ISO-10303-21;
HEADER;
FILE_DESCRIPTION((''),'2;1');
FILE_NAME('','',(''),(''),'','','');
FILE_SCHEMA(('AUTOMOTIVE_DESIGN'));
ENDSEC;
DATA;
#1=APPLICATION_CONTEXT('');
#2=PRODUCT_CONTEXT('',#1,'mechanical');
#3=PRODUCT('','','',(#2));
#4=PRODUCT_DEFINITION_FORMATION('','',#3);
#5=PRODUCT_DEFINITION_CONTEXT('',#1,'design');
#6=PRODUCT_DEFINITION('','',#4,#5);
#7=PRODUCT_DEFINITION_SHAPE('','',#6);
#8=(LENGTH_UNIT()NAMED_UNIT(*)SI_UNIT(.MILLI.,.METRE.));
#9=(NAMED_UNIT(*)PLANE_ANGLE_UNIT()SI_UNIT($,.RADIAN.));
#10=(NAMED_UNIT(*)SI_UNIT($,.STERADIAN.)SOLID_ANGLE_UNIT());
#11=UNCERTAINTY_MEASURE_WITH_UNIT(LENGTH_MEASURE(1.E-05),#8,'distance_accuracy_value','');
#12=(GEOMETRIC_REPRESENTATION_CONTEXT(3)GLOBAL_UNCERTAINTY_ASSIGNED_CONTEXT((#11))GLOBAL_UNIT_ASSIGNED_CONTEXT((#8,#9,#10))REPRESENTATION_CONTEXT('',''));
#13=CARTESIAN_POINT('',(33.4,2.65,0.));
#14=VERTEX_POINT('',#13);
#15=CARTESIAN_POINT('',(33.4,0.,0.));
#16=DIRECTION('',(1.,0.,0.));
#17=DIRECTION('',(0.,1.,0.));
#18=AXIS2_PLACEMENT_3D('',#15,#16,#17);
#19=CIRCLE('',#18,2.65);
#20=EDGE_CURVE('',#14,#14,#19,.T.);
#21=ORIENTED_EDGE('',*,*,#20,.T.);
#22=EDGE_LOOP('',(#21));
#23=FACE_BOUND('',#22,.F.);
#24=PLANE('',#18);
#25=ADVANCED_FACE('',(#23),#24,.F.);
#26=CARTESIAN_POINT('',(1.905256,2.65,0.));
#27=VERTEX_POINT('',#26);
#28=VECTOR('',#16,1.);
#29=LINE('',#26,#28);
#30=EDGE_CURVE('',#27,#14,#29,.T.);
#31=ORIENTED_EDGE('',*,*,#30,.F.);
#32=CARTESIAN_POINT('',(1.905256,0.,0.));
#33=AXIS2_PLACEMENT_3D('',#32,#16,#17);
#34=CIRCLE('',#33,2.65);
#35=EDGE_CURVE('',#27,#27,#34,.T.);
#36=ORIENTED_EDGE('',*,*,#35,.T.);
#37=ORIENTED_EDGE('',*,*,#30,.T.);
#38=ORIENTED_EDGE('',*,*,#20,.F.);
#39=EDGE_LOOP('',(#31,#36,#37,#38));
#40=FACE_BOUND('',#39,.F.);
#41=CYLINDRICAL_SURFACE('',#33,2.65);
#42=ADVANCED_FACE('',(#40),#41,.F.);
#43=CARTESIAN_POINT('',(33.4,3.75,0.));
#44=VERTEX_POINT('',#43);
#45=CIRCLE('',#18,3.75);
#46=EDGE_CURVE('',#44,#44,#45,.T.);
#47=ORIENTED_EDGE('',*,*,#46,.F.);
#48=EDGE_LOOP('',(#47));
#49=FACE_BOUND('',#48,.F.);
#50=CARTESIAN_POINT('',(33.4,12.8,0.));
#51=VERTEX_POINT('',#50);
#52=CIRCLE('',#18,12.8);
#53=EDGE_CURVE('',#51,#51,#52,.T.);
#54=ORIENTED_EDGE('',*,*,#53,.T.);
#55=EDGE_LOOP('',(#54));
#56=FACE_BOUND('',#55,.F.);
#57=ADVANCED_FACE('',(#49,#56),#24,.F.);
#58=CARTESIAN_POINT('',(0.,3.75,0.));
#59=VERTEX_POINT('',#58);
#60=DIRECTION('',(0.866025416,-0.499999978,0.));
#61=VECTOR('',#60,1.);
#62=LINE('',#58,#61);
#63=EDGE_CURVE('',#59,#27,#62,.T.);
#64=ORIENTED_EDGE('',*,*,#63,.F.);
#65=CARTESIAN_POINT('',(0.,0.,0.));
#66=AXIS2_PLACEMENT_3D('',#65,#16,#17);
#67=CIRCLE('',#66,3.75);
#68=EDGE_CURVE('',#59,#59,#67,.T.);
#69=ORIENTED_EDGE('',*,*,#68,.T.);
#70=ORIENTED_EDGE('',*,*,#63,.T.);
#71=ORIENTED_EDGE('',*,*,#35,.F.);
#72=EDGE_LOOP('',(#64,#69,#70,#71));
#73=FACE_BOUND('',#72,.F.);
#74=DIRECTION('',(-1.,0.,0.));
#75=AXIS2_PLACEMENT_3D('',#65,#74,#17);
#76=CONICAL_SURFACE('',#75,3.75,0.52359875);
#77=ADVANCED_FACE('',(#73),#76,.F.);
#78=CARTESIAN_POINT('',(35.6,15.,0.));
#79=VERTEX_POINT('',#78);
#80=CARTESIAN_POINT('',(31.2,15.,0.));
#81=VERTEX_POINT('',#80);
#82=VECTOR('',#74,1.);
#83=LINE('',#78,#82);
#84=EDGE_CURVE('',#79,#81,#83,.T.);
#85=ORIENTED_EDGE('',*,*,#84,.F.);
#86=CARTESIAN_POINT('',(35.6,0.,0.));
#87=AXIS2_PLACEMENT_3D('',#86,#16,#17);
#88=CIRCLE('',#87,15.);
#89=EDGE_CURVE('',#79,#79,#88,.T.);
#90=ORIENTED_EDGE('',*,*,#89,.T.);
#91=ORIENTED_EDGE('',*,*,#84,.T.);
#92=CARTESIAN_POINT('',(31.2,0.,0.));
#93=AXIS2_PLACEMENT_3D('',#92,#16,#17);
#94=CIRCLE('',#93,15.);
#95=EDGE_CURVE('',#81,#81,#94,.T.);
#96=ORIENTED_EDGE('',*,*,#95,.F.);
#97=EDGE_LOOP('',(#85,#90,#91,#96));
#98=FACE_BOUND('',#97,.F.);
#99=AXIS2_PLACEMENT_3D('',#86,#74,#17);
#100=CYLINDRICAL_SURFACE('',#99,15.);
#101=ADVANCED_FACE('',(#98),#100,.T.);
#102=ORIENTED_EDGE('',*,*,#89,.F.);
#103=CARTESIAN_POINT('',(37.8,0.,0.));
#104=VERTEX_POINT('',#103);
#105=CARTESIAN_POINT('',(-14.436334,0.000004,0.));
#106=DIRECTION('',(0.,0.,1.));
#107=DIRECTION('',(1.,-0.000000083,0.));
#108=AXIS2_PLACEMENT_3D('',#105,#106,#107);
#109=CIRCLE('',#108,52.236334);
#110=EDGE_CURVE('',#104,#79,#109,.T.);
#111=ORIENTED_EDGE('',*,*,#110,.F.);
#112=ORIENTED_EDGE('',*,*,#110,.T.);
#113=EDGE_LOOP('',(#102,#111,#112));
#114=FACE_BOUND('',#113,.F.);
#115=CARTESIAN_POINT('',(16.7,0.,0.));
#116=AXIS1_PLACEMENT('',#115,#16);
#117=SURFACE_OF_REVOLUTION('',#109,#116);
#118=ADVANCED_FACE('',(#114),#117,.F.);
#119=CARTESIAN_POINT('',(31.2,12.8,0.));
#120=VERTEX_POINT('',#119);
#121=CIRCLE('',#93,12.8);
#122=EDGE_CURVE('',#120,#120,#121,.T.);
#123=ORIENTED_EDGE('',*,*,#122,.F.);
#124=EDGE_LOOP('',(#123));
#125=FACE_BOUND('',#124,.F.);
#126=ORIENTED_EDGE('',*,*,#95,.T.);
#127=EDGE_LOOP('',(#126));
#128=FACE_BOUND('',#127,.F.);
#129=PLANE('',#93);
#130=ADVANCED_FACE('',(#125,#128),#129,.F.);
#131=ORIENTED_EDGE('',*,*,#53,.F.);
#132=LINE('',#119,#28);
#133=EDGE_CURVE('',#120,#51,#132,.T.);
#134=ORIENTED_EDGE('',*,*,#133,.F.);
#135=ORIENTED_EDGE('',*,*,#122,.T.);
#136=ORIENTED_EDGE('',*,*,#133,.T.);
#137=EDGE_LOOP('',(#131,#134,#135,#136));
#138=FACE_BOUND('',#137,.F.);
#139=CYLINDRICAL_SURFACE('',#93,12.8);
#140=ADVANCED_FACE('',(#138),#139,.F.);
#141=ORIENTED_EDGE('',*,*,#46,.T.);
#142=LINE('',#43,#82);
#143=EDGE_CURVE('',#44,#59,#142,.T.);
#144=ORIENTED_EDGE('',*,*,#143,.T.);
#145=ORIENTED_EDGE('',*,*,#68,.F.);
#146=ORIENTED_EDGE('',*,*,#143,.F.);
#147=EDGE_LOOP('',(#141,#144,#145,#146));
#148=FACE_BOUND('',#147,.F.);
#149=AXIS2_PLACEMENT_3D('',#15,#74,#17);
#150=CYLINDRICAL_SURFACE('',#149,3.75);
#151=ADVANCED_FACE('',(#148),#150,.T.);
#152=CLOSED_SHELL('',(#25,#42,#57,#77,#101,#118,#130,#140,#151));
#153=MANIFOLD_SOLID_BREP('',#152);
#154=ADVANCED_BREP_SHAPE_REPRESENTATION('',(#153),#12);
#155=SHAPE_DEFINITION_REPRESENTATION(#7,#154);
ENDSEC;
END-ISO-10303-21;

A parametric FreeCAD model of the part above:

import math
import FreeCAD as App
import Part
import Sketcher

V = App.Vector
Q = App.Units.Quantity

doc = App.newDocument("Part")
params = doc.addObject("Spreadsheet::Sheet", "Params")
for row, (alias, value) in enumerate([
    ("sketch1_width", "4.4 mm"),
    ("sketch1_width2", "2.2 mm"),
    ("sketch1_width3", "33.4 mm"),
    ("sketch1_length", "2.2 mm"),
    ("sketch1_height", "2.65 mm"),
    ("revolution_angle", "360 deg"),
], start=1):
    params.set(f"A{row}", alias)
    params.set(f"B{row}", "=" + value)
    params.setAlias(f"B{row}", alias)

body = doc.addObject("PartDesign::Body", "Body")

# Sketch on XY plane
sketch1 = doc.addObject("Sketcher::SketchObject", "Sketch")
body.addObject(sketch1)
sketch1.AttachmentSupport = (doc.XY_Plane, [""])
sketch1.MapMode = "FlatFace"
sketch1.addGeometry([
    Part.LineSegment(V(33.4, 2.6, 0), V(33.4, 0, 0)),  # 0
    Part.LineSegment(V(33.4, 0, 0), V(37.8, 0, 0)),  # 1
    Part.ArcOfCircle(Part.Circle(V(-14.4, 0, 0), V(0, 0, 1), 52.2), math.radians(0), math.radians(16.69)),  # 2
    Part.LineSegment(V(35.6, 15, 0), V(31.2, 15, 0)),  # 3
    Part.LineSegment(V(31.2, 15, 0), V(31.2, 12.8, 0)),  # 4
    Part.LineSegment(V(31.2, 12.8, 0), V(33.4, 12.8, 0)),  # 5
    Part.LineSegment(V(33.4, 12.8, 0), V(33.4, 3.8, 0)),  # 6
    Part.LineSegment(V(33.4, 3.8, 0), V(0, 3.8, 0)),  # 7
    Part.LineSegment(V(0, 3.8, 0), V(1.9, 2.6, 0)),  # 8
    Part.LineSegment(V(1.9, 2.6, 0), V(33.4, 2.6, 0)),  # 9
], False)
sketch1.addConstraint([
    Sketcher.Constraint("Coincident", 0, 2, 1, 1),
    Sketcher.Constraint("Coincident", 1, 2, 2, 1),
    Sketcher.Constraint("Coincident", 2, 2, 3, 1),
    Sketcher.Constraint("Coincident", 3, 2, 4, 1),
    Sketcher.Constraint("Coincident", 4, 2, 5, 1),
    Sketcher.Constraint("Coincident", 5, 2, 6, 1),
    Sketcher.Constraint("Coincident", 6, 2, 7, 1),
    Sketcher.Constraint("Coincident", 7, 2, 8, 1),
    Sketcher.Constraint("Coincident", 8, 2, 9, 1),
    Sketcher.Constraint("Coincident", 9, 2, 0, 1),
    Sketcher.Constraint("Vertical", 0),
    Sketcher.Constraint("Horizontal", 1),
    Sketcher.Constraint("Horizontal", 3),
    Sketcher.Constraint("Vertical", 4),
    Sketcher.Constraint("Horizontal", 5),
    Sketcher.Constraint("Vertical", 6),
    Sketcher.Constraint("Horizontal", 7),
    Sketcher.Constraint("Horizontal", 9),
    Sketcher.Constraint("PointOnObject", 0, 2, -1),
    Sketcher.Constraint("PointOnObject", 7, 2, -2),
    Sketcher.Constraint("Vertical", 0, 2, 5, 2),
    Sketcher.Constraint("Equal", 1, 3),
    Sketcher.Constraint("Equal", 5, 4),
    Sketcher.Constraint("Angle", 8, Q("-29.999999 deg")),
    Sketcher.Constraint("DistanceX", 1, 1, 1, 2, Q("4.4 mm")),
    Sketcher.Constraint("DistanceX", 5, 1, 5, 2, Q("2.2 mm")),
    Sketcher.Constraint("DistanceX", 7, 2, 7, 1, Q("33.4 mm")),
    Sketcher.Constraint("DistanceY", -1, 1, 2, 2, Q("15 mm")),
    Sketcher.Constraint("Distance", 8, Q("2.2 mm")),
    Sketcher.Constraint("DistanceY", 0, 2, 0, 1, Q("2.65 mm")),
    Sketcher.Constraint("Radius", 2, Q("52.236334 mm")),
])
sketch1.setExpression("Constraints[24]", "Params.sketch1_width")
sketch1.setExpression("Constraints[25]", "Params.sketch1_width2")
sketch1.setExpression("Constraints[26]", "Params.sketch1_width3")
sketch1.setExpression("Constraints[28]", "Params.sketch1_length")
sketch1.setExpression("Constraints[29]", "Params.sketch1_height")
revolution = doc.addObject("PartDesign::Revolution", "Revolution")
body.addObject(revolution)
revolution.Profile = sketch1
revolution.ReferenceAxis = (sketch1, ["H_Axis"])
revolution.setExpression("Angle", "Params.revolution_angle")

doc.recompute()
